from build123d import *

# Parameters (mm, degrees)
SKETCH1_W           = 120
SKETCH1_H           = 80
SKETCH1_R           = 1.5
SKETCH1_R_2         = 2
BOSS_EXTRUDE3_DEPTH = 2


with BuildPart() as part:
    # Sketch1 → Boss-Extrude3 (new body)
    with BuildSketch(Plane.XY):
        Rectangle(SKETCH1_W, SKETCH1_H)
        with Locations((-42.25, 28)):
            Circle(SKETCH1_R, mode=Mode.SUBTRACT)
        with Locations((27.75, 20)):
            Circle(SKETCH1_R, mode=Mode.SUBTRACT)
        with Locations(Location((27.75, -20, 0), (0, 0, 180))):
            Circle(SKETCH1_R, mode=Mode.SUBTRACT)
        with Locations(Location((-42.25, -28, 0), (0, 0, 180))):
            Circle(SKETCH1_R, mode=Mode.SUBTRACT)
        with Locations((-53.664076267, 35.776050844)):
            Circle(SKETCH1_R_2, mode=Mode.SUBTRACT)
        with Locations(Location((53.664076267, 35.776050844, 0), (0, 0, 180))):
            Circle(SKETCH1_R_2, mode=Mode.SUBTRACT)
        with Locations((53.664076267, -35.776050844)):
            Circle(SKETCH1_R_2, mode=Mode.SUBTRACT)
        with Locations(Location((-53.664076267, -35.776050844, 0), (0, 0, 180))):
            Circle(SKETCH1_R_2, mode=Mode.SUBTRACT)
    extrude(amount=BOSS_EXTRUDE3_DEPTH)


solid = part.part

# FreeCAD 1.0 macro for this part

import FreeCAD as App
import Part
import Sketcher

V = App.Vector
Q = App.Units.Quantity

doc = App.newDocument("Part")
body = doc.addObject("PartDesign::Body", "Body")

# Sketch on XY plane
sketch1 = body.newObject("Sketcher::SketchObject", "Sketch")
sketch1.AttachmentSupport = (doc.getObject("XY_Plane"), [""])
sketch1.MapMode = "FlatFace"
sketch1.addGeometry([
    Part.LineSegment(V(-60, 40, 0), V(-60, -40, 0)),  # 0
    Part.LineSegment(V(-60, -40, 0), V(60, -40, 0)),  # 1
    Part.LineSegment(V(60, -40, 0), V(60, 40, 0)),  # 2
    Part.LineSegment(V(60, 40, 0), V(-60, 40, 0)),  # 3
    Part.Circle(V(-53.7, -35.8, 0), V(0, 0, 1), 2),  # 4
    Part.Circle(V(-42.2, -28, 0), V(0, 0, 1), 1.5),  # 5
    Part.Circle(V(27.8, -20, 0), V(0, 0, 1), 1.5),  # 6
    Part.Circle(V(53.7, -35.8, 0), V(0, 0, 1), 2),  # 7
    Part.Circle(V(-42.2, 28, 0), V(0, 0, 1), 1.5),  # 8
    Part.Circle(V(-53.7, 35.8, 0), V(0, 0, 1), 2),  # 9
    Part.Circle(V(27.8, 20, 0), V(0, 0, 1), 1.5),  # 10
    Part.Circle(V(53.7, 35.8, 0), V(0, 0, 1), 2),  # 11
], False)
sketch1.addConstraint([
    Sketcher.Constraint("Coincident", 0, 2, 1, 1),
    Sketcher.Constraint("Coincident", 1, 2, 2, 1),
    Sketcher.Constraint("Coincident", 2, 2, 3, 1),
    Sketcher.Constraint("Coincident", 3, 2, 0, 1),
    Sketcher.Constraint("Vertical", 0),
    Sketcher.Constraint("Horizontal", 1),
    Sketcher.Constraint("Vertical", 2),
    Sketcher.Constraint("Horizontal", 3),
    Sketcher.Constraint("Equal", 5, 6),
    Sketcher.Constraint("Equal", 4, 7),
    Sketcher.Constraint("Equal", 6, 8),
    Sketcher.Constraint("Equal", 7, 9),
    Sketcher.Constraint("Equal", 8, 10),
    Sketcher.Constraint("Equal", 9, 11),
    Sketcher.Constraint("Symmetric", 7, 3, 9, 3, -1, 1),
    Sketcher.Constraint("Symmetric", 4, 3, 11, 3, -1, 1),
    Sketcher.Constraint("Symmetric", 0, 2, 2, 2, -1, 1),
    Sketcher.Constraint("Symmetric", 4, 3, 7, 3, -2),
    Sketcher.Constraint("Symmetric", 5, 3, 8, 3, -1),
    Sketcher.Constraint("Symmetric", 6, 3, 10, 3, -1),
    Sketcher.Constraint("Diameter", 4, Q("4 mm")),
    Sketcher.Constraint("Diameter", 5, Q("3 mm")),
    Sketcher.Constraint("DistanceX", 1, 1, 1, 2, Q("120 mm")),
    Sketcher.Constraint("DistanceY", 0, 2, 0, 1, Q("80 mm")),
    Sketcher.Constraint("DistanceY", 5, 3, -1, 1, Q("28 mm")),
    Sketcher.Constraint("DistanceY", 6, 3, -1, 1, Q("20 mm")),
    Sketcher.Constraint("DistanceX", 5, 3, 6, 3, Q("70 mm")),
    Sketcher.Constraint("DistanceX", 5, 3, -1, 1, Q("42.25 mm")),
    Sketcher.Constraint("DistanceY", 4, 3, 9, 3, Q("71.552102 mm")),
    Sketcher.Constraint("DistanceX", 4, 3, -1, 1, Q("53.664076 mm")),
])
pad1 = body.newObject("PartDesign::Pad", "Pad")
pad1.Profile = sketch1
pad1.Length = 2

doc.recompute()
